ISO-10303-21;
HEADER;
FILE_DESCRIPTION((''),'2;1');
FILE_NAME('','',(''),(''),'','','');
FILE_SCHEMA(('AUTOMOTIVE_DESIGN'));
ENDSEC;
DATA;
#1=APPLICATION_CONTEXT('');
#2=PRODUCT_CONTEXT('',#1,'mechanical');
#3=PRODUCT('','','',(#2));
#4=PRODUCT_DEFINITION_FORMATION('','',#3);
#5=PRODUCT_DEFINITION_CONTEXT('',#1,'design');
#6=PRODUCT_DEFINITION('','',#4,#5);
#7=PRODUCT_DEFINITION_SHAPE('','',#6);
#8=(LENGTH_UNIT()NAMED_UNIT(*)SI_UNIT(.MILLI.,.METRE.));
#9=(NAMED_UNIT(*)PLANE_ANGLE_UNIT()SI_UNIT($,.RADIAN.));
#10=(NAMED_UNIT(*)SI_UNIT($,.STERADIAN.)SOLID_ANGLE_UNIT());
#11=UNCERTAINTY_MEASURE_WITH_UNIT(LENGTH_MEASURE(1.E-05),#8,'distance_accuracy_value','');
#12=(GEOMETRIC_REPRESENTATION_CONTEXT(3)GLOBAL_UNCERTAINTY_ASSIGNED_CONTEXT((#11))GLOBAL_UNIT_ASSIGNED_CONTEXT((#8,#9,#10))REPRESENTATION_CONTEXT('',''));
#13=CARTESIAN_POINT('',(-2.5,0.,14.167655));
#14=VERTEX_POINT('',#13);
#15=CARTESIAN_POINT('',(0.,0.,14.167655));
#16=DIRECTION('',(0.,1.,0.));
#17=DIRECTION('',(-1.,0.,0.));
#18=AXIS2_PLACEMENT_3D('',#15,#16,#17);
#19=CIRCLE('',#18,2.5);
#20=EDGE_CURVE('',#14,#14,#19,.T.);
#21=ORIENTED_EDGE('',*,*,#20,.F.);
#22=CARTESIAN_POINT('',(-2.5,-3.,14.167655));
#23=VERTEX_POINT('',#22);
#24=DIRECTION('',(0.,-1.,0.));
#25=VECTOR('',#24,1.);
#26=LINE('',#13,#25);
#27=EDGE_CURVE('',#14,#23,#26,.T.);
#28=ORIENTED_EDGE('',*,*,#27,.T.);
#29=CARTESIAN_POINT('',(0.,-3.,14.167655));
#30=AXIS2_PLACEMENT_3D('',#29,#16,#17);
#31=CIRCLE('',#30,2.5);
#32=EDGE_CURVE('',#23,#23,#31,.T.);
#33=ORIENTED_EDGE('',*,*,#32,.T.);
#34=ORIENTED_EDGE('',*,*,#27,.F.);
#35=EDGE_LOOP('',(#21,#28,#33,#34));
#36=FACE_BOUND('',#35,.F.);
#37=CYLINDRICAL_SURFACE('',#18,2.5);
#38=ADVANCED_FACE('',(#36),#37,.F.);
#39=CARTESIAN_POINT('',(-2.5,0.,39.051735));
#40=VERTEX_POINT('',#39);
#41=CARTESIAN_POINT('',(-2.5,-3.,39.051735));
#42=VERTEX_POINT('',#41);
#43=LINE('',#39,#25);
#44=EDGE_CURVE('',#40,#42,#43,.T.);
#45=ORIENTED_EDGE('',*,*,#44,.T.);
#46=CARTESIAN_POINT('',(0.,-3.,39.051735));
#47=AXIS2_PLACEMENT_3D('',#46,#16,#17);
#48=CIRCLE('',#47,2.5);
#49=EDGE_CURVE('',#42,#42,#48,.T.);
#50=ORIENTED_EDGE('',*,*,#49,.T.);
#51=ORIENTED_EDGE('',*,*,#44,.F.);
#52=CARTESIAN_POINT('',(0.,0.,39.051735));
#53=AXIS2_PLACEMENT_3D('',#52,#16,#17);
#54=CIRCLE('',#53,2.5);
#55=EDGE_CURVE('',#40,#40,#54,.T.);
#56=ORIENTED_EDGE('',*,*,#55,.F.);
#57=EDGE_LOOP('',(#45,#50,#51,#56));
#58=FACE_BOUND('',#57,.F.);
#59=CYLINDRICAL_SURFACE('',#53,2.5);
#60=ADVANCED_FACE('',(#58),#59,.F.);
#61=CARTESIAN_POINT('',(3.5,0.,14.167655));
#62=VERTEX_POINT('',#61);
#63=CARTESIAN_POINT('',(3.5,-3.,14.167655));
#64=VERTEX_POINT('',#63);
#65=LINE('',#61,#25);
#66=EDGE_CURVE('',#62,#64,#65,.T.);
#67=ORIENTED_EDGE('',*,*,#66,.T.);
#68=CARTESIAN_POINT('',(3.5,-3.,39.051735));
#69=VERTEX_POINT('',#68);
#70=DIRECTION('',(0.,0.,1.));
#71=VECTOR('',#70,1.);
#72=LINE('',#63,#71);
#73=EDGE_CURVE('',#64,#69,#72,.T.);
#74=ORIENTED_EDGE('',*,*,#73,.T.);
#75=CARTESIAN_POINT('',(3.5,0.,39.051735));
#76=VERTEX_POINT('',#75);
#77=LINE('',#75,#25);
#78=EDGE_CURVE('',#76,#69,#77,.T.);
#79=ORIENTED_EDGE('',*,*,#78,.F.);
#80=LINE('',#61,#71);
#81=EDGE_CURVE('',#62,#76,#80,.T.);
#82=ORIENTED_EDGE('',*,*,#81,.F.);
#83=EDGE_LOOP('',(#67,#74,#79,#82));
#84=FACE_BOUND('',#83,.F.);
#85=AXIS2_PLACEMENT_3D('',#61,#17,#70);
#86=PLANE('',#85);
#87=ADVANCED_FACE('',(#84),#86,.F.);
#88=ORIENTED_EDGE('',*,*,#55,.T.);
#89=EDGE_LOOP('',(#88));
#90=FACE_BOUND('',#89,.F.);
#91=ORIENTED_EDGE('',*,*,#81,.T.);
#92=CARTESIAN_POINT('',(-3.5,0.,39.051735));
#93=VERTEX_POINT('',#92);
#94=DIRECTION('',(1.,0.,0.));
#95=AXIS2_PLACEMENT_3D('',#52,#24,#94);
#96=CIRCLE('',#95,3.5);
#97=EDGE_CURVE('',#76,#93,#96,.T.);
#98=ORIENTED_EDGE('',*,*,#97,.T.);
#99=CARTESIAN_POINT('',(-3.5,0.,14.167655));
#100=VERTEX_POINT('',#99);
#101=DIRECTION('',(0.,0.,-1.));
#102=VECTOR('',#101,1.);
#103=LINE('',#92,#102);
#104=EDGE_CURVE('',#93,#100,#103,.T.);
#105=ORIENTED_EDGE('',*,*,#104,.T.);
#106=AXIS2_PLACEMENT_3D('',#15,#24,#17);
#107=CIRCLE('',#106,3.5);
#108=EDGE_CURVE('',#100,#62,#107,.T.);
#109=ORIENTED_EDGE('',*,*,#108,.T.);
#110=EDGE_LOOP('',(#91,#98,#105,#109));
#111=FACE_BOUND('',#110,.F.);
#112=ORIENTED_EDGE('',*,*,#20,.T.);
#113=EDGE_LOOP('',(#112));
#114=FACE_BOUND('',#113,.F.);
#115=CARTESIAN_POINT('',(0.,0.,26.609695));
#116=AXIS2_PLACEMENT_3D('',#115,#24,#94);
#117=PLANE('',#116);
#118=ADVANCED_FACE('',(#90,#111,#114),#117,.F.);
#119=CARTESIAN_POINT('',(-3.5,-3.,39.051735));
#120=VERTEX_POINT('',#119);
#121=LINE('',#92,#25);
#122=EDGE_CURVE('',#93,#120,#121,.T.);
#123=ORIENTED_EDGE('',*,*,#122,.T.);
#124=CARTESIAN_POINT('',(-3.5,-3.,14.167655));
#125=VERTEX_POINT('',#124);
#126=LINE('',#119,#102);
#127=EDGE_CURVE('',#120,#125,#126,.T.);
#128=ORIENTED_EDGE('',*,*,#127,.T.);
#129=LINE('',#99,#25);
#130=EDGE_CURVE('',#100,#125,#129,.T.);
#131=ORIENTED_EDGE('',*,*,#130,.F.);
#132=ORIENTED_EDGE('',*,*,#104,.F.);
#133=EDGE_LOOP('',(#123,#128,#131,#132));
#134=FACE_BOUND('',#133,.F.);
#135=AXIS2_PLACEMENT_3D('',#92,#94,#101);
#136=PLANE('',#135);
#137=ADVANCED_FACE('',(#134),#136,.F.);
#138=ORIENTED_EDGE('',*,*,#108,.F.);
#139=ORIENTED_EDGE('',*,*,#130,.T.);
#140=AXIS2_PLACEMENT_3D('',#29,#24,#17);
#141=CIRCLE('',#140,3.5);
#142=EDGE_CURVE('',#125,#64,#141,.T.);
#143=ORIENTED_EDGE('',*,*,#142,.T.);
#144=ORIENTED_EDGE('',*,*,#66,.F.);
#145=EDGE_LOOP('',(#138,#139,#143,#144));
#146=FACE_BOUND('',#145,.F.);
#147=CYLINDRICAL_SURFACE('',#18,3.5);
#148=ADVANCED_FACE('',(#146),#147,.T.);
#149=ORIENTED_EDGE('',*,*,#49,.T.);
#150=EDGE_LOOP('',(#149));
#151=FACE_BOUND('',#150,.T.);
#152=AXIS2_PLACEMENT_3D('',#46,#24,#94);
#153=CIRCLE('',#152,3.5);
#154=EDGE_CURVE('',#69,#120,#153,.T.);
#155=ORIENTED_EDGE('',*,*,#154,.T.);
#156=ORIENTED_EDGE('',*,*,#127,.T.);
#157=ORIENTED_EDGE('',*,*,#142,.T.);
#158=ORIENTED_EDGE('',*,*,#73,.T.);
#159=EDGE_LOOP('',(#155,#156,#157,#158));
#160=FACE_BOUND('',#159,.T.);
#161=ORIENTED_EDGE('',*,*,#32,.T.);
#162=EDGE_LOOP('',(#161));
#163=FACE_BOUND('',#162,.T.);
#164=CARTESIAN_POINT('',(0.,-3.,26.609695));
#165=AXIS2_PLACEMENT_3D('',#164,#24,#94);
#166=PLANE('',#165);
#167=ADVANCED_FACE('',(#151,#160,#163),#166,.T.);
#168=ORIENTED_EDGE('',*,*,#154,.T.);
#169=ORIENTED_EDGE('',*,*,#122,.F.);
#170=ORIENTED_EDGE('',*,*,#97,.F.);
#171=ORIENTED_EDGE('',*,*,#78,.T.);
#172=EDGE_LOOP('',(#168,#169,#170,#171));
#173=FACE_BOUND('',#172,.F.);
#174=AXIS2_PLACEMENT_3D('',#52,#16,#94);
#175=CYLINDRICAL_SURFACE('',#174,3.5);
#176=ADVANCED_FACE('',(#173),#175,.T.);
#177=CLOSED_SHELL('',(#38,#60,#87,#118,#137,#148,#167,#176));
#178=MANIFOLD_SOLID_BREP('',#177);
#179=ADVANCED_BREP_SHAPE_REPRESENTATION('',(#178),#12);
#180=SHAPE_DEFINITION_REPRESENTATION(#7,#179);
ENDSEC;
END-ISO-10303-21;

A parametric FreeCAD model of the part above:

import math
import FreeCAD as App
import Part
import Sketcher
from FreeCAD import Vector
Q = App.Units.Quantity

doc = App.newDocument("Part")
body = doc.addObject("PartDesign::Body", "Body")

# Sketch on XZ plane
sketch1 = body.newObject("Sketcher::SketchObject", "Sketch")
sketch1.AttachmentSupport = (doc.getObject("XZ_Plane"), [""])
sketch1.MapMode = "FlatFace"
sketch1.addGeometry([
    Part.LineSegment(Vector(-3.5, 39.051735, 0), Vector(-3.5, 14.167655, 0)),  # 0
    Part.ArcOfCircle(Part.Circle(Vector(0, 14.167655, 0), Vector(0, 0, 1), 3.5), math.radians(180), math.radians(360)),  # 1
    Part.LineSegment(Vector(3.5, 14.167655, 0), Vector(3.5, 39.051735, 0)),  # 2
    Part.ArcOfCircle(Part.Circle(Vector(0, 39.051735, 0), Vector(0, 0, 1), 3.5), math.radians(0), math.radians(180)),  # 3
    Part.Circle(Vector(0, 14.167655, 0), Vector(0, 0, 1), 2.5),  # 4
    Part.Circle(Vector(0, 39.051735, 0), Vector(0, 0, 1), 2.5),  # 5
], False)
sketch1.addConstraint([
    Sketcher.Constraint("Tangent", 0, 2, 1, 1),
    Sketcher.Constraint("Tangent", 1, 2, 2, 1),
    Sketcher.Constraint("Tangent", 2, 2, 3, 1),
    Sketcher.Constraint("Tangent", 3, 2, 0, 1),
    Sketcher.Constraint("Vertical", 0),
    Sketcher.Constraint("Vertical", 2),
    Sketcher.Constraint("Coincident", 4, 3, 1, 3),
    Sketcher.Constraint("Coincident", 5, 3, 3, 3),
    Sketcher.Constraint("Equal", 4, 5),
    Sketcher.Constraint("PointOnObject", 1, 3, -2),
    Sketcher.Constraint("Diameter", 4, Q("5 mm")),
    Sketcher.Constraint("Radius", 1, Q("3.5 mm")),
    Sketcher.Constraint("DistanceY", 0, 2, 0, 1, Q("24.88408 mm")),
    Sketcher.Constraint("DistanceY", -1, 1, 1, 3, Q("14.167655 mm")),
])
pad1 = body.newObject("PartDesign::Pad", "Pad")
pad1.Profile = sketch1
pad1.Length = 3

doc.recompute()
